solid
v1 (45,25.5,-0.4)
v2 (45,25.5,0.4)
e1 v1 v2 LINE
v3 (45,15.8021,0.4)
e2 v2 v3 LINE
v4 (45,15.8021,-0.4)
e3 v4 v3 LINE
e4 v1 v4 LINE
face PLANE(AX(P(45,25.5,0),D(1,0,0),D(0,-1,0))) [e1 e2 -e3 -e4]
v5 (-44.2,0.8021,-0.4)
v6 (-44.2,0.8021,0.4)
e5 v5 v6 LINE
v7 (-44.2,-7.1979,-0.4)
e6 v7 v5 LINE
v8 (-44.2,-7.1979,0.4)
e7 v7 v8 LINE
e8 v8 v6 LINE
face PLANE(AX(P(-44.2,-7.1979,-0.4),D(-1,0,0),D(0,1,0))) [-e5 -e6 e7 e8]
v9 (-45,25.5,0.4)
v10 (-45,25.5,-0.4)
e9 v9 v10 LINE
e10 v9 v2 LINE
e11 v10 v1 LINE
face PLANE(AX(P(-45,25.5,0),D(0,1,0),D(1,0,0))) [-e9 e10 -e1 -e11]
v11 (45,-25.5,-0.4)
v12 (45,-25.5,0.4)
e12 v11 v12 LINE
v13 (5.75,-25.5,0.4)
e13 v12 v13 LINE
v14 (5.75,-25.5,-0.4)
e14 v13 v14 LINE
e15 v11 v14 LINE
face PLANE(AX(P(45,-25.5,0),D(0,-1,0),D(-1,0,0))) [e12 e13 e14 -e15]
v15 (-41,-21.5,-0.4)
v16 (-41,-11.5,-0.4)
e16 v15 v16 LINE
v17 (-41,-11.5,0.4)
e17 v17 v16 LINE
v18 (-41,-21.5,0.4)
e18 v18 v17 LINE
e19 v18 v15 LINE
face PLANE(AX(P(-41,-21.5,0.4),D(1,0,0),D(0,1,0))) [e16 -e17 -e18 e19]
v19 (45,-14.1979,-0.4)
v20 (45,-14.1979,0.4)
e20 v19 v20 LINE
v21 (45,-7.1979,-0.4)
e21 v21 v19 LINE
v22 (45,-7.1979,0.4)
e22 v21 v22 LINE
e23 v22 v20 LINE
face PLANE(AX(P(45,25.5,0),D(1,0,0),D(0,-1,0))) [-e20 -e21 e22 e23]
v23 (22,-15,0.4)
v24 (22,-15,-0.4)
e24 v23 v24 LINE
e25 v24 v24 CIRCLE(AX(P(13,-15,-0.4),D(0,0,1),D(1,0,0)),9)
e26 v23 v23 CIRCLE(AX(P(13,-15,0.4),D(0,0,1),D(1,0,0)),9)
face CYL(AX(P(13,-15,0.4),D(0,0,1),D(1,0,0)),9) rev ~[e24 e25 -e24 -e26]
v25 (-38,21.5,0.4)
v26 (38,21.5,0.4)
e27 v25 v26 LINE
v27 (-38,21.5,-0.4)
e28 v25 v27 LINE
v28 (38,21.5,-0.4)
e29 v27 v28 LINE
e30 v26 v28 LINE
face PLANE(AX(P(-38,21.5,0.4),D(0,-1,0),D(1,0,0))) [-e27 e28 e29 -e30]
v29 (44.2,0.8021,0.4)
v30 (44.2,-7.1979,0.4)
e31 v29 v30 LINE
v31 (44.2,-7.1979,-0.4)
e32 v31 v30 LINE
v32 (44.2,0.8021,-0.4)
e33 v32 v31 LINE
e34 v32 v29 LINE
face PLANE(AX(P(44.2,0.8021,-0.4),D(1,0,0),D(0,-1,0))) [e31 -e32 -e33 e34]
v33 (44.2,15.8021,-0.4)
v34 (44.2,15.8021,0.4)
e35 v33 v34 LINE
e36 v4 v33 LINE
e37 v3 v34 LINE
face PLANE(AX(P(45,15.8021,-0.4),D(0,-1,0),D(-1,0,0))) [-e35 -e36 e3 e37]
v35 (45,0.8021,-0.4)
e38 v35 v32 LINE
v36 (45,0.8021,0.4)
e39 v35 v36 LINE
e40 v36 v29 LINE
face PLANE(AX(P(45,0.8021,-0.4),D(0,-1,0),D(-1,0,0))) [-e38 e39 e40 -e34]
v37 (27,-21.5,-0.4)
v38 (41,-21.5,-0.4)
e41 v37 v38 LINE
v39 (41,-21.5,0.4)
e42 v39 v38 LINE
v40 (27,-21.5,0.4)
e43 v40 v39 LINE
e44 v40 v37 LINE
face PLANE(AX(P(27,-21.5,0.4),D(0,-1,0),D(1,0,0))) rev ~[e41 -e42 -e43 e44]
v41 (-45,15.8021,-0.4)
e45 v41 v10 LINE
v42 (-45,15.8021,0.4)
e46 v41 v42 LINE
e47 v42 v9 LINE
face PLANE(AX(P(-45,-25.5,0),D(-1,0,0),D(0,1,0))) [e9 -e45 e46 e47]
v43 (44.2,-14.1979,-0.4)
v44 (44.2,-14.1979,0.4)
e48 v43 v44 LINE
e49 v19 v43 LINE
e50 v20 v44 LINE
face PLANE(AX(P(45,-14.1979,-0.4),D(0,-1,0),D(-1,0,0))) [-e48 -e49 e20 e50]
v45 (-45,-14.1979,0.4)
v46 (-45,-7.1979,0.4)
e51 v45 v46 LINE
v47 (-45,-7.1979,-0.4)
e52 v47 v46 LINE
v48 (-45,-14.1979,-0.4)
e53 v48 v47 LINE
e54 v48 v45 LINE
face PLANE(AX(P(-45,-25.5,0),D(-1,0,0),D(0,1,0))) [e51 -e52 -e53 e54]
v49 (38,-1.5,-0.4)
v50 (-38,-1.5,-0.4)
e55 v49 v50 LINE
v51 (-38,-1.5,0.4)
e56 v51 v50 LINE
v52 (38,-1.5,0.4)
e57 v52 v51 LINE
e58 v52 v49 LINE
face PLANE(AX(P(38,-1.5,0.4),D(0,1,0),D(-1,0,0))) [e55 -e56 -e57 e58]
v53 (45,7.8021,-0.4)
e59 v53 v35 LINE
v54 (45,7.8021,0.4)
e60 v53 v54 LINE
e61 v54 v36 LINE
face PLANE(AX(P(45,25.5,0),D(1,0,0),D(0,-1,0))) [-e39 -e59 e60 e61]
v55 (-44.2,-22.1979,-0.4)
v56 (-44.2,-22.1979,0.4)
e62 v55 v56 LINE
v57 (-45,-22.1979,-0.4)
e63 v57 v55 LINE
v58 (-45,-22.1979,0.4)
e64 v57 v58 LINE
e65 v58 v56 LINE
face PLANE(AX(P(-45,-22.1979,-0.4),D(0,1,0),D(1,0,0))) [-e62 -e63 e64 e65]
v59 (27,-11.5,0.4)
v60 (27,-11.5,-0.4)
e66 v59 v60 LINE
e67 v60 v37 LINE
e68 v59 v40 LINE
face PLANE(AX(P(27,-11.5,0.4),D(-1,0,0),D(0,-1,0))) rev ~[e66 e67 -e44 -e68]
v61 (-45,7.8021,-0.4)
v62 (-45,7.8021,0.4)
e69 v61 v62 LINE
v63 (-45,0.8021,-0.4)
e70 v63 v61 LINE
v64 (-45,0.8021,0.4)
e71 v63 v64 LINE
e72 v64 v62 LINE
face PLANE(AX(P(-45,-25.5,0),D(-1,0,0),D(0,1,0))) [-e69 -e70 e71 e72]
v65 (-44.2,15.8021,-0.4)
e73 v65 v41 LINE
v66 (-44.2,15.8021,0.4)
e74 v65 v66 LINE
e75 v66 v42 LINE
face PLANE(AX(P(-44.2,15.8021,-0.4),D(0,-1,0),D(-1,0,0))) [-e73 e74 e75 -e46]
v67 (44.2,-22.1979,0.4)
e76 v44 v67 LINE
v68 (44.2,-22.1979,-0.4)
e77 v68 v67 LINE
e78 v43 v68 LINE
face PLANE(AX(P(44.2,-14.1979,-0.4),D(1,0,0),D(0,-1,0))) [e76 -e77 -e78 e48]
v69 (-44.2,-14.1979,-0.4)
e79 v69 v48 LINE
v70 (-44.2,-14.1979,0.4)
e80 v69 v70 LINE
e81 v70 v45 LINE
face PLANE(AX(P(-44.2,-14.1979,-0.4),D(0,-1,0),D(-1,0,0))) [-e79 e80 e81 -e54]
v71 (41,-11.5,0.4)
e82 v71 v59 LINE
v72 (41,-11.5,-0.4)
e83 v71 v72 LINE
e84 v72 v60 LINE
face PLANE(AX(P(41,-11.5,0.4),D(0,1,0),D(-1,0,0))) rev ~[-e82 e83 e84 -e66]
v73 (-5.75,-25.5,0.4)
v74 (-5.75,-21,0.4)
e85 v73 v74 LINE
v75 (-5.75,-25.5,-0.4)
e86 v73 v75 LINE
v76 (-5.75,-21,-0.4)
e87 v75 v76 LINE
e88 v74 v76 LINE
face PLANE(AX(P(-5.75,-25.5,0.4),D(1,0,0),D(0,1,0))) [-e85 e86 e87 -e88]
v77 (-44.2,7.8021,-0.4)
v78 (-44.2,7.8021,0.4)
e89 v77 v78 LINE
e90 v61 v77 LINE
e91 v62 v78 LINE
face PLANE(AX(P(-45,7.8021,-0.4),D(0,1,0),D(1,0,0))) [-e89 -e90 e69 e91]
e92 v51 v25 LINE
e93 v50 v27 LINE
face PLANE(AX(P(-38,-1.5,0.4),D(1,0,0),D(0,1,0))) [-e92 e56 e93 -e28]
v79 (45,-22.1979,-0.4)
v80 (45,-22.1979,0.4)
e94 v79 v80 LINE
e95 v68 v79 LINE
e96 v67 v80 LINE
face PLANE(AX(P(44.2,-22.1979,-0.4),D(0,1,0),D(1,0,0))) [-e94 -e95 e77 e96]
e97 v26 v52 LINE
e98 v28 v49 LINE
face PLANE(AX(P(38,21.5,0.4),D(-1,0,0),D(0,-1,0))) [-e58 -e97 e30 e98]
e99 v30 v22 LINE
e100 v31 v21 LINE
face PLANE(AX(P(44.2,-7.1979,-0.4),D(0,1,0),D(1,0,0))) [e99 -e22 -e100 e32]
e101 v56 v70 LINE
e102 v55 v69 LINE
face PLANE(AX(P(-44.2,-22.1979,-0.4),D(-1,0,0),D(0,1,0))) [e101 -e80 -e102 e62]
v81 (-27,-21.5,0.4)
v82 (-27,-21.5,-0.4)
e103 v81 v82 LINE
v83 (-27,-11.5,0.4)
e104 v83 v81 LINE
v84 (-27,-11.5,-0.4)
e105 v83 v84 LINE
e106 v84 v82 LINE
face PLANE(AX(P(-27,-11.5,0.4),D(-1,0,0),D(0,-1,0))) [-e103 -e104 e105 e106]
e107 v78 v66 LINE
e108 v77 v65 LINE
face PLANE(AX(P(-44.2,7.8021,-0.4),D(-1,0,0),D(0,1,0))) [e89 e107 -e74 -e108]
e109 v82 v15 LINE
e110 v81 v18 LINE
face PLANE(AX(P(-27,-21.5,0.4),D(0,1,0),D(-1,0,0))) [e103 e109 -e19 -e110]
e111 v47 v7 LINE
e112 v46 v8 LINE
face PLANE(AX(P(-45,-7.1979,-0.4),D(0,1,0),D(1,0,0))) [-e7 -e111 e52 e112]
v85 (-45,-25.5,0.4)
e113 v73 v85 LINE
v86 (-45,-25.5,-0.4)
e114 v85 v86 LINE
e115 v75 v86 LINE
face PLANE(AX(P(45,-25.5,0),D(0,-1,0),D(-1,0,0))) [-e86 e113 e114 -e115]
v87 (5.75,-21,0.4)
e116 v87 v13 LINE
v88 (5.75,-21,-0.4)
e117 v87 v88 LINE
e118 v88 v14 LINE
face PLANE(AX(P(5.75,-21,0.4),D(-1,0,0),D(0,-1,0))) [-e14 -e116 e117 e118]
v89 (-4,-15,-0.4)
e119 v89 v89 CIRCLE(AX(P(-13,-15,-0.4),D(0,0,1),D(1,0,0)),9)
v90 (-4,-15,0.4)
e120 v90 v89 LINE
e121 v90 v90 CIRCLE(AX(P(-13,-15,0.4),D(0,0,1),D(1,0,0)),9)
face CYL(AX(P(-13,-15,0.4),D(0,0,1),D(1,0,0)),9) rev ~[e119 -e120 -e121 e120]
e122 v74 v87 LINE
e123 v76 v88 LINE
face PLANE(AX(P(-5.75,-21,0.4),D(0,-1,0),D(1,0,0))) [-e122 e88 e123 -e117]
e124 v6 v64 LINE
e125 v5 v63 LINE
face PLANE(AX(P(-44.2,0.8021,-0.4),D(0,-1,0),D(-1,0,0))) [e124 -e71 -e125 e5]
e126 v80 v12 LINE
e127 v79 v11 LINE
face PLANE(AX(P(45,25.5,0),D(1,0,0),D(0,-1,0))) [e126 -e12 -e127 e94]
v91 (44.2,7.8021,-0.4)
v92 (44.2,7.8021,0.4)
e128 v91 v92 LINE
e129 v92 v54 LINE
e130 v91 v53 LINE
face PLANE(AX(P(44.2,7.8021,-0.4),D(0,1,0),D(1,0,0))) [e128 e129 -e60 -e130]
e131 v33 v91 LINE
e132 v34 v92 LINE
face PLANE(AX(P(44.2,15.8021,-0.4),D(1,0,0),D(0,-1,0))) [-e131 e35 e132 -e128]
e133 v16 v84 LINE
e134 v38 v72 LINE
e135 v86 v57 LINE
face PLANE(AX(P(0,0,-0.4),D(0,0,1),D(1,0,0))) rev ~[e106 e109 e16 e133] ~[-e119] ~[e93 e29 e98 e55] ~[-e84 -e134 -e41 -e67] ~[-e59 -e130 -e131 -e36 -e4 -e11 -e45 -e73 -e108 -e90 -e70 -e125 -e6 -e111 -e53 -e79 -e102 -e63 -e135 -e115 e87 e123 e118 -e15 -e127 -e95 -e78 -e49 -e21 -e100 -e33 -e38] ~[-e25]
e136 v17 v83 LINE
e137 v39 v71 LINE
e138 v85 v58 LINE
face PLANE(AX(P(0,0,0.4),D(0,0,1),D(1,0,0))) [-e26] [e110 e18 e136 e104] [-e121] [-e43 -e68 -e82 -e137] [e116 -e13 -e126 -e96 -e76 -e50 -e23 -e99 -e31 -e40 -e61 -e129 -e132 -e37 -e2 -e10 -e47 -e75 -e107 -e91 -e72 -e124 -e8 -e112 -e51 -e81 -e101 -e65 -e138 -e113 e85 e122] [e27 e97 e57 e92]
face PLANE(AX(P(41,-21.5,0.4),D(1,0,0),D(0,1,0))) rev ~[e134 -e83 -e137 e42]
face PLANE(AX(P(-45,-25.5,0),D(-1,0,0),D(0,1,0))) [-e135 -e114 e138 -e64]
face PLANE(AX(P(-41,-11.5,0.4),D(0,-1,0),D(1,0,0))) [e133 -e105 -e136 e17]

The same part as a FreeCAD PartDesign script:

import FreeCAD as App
import Part
import Sketcher
from FreeCAD import Vector
Q = App.Units.Quantity


def add_polygon(sketch, points):
    """Adds a closed chain of lines whose ends are joined by coincident constraints."""
    first, n = sketch.GeometryCount, len(points)
    for a, b in zip(points, points[1:] + points[:1]):
        sketch.addGeometry(Part.LineSegment(App.Vector(*a, 0), App.Vector(*b, 0)), False)
    for i in range(n):
        sketch.addConstraint(Sketcher.Constraint("Coincident", first + i, 2, first + (i + 1) % n, 1))

doc = App.newDocument("Part")
body = doc.addObject("PartDesign::Body", "Body")

sketch1 = body.newObject("Sketcher::SketchObject", "Sketch")
sketch1.AttachmentSupport = (doc.getObject("XY_Plane"), [""])
sketch1.MapMode = "FlatFace"
add_polygon(sketch1, [(-45, -26), (45, -26), (45, 26), (-45, 26)])
sketch1.addConstraint([
    Sketcher.Constraint("Horizontal", 0),
    Sketcher.Constraint("Vertical", 1),
    Sketcher.Constraint("Horizontal", 2),
    Sketcher.Constraint("Vertical", 3),
    Sketcher.Constraint("Symmetric", 0, 2, 2, 2, -1, 1),
    Sketcher.Constraint("DistanceX", 0, 1, 0, 2, Q("90 mm")),
    Sketcher.Constraint("DistanceY", 1, 1, 1, 2, Q("51 mm")),
])
pad1 = body.newObject("PartDesign::Pad", "Pad")
pad1.Profile = sketch1
pad1.Length = 0.8
pad1.Midplane = True

sketch2 = body.newObject("Sketcher::SketchObject", "Sketch001")
sketch2.AttachmentSupport = (doc.getObject("XY_Plane"), [""])
sketch2.MapMode = "FlatFace"
sketch2.AttachmentOffset = App.Placement(Vector(0, 0, 0.4), App.Rotation())
sketch2.addGeometry([
    Part.Circle(Vector(-13, -15, 0), Vector(0, 0, 1), 9),
    Part.Circle(Vector(13, -15, 0), Vector(0, 0, 1), 9),
], False)
sketch2.addConstraint([
    Sketcher.Constraint("Equal", 0, 1),
    Sketcher.Constraint("Symmetric", 0, 3, 1, 3, -2),
    Sketcher.Constraint("Diameter", 0, Q("18 mm")),
    Sketcher.Constraint("DistanceX", 0, 3, 1, 3, Q("26 mm")),
    Sketcher.Constraint("DistanceY", 0, 3, -1, 1, Q("15 mm")),
])
pocket1 = body.newObject("PartDesign::Pocket", "Pocket")
pocket1.Profile = sketch2
pocket1.Type = "ThroughAll"

sketch3 = body.newObject("Sketcher::SketchObject", "Sketch002")
sketch3.AttachmentSupport = (doc.getObject("XY_Plane"), [""])
sketch3.MapMode = "FlatFace"
sketch3.AttachmentOffset = App.Placement(Vector(0, 0, 0.4), App.Rotation())
add_polygon(sketch3, [(5.8, -21), (-5.8, -21), (-5.8, -25.5), (5.8, -25.5)])
sketch3.addConstraint([
    Sketcher.Constraint("Horizontal", 0),
    Sketcher.Constraint("Vertical", 1),
    Sketcher.Constraint("Horizontal", 2),
    Sketcher.Constraint("Vertical", 3),
    Sketcher.Constraint("DistanceX", 0, 2, 0, 1, Q("11.5 mm")),
    Sketcher.Constraint("DistanceY", 1, 2, 1, 1, Q("4.5 mm")),
    Sketcher.Constraint("DistanceY", 0, 2, -1, 1, Q("21 mm")),
    Sketcher.Constraint("DistanceX", 0, 2, -1, 1, Q("5.75 mm")),
])
pocket2 = body.newObject("PartDesign::Pocket", "Pocket001")
pocket2.Profile = sketch3
pocket2.Type = "ThroughAll"

sketch4 = body.newObject("Sketcher::SketchObject", "Sketch003")
sketch4.AttachmentSupport = (doc.getObject("XY_Plane"), [""])
sketch4.MapMode = "FlatFace"
sketch4.AttachmentOffset = App.Placement(Vector(0, 0, 0.4), App.Rotation())
add_polygon(sketch4, [(38, 22), (-38, 22), (-38, -2), (38, -2)])
sketch4.addConstraint([
    Sketcher.Constraint("Horizontal", 0),
    Sketcher.Constraint("Vertical", 1),
    Sketcher.Constraint("Horizontal", 2),
    Sketcher.Constraint("Vertical", 3),
    Sketcher.Constraint("DistanceX", 0, 2, 0, 1, Q("76 mm")),
    Sketcher.Constraint("DistanceY", 1, 2, 1, 1, Q("23 mm")),
    Sketcher.Constraint("DistanceX", 0, 2, -1, 1, Q("38 mm")),
    Sketcher.Constraint("DistanceY", -1, 1, 0, 2, Q("21.5 mm")),
])
pocket3 = body.newObject("PartDesign::Pocket", "Pocket002")
pocket3.Profile = sketch4
pocket3.Length = 10

sketch5 = body.newObject("Sketcher::SketchObject", "Sketch004")
sketch5.AttachmentSupport = (doc.getObject("XY_Plane"), [""])
sketch5.MapMode = "FlatFace"
sketch5.AttachmentOffset = App.Placement(Vector(0, 0, 0.4), App.Rotation())
add_polygon(sketch5, [(-27, -12), (-41, -12), (-41, -22), (-27, -22)])
add_polygon(sketch5, [(41, -22), (41, -12), (27, -12), (27, -22)])
sketch5.addConstraint([
    Sketcher.Constraint("Horizontal", 0),
    Sketcher.Constraint("Vertical", 1),
    Sketcher.Constraint("Horizontal", 2),
    Sketcher.Constraint("Vertical", 3),
    Sketcher.Constraint("Vertical", 4),
    Sketcher.Constraint("Horizontal", 5),
    Sketcher.Constraint("Vertical", 6),
    Sketcher.Constraint("Horizontal", 7),
    Sketcher.Constraint("Symmetric", 0, 2, 4, 2, -2),
    Sketcher.Constraint("Symmetric", 2, 2, 6, 2, -2),
    Sketcher.Constraint("DistanceX", 0, 2, 0, 1, Q("14 mm")),
    Sketcher.Constraint("DistanceY", 1, 2, 1, 1, Q("10 mm")),
    Sketcher.Constraint("DistanceX", 0, 2, -1, 1, Q("41 mm")),
    Sketcher.Constraint("DistanceY", 0, 2, -1, 1, Q("11.5 mm")),
])
pocket4 = body.newObject("PartDesign::Pocket", "Pocket003")
pocket4.Profile = sketch5
pocket4.Length = 10

sketch6 = body.newObject("Sketcher::SketchObject", "Sketch005")
sketch6.AttachmentSupport = (doc.getObject("XY_Plane"), [""])
sketch6.MapMode = "FlatFace"
sketch6.AttachmentOffset = App.Placement(Vector(0, 0, -0.4), App.Rotation())
add_polygon(sketch6, [(-45, 0.8), (-44.2, 0.8), (-44.2, -7.2), (-45, -7.2)])
add_polygon(sketch6, [(-45, 15.8), (-44.2, 15.8), (-44.2, 7.8), (-45, 7.8)])
add_polygon(sketch6, [(-45, -14.2), (-44.2, -14.2), (-44.2, -22.2), (-45, -22.2)])
add_polygon(sketch6, [(44.2, 0.8), (45, 0.8), (45, -7.2), (44.2, -7.2)])
add_polygon(sketch6, [(44.2, 15.8), (45, 15.8), (45, 7.8), (44.2, 7.8)])
add_polygon(sketch6, [(44.2, -14.2), (45, -14.2), (45, -22.2), (44.2, -22.2)])
sketch6.addConstraint([
    Sketcher.Constraint("Horizontal", 0),
    Sketcher.Constraint("Vertical", 1),
    Sketcher.Constraint("Horizontal", 2),
    Sketcher.Constraint("Vertical", 3),
    Sketcher.Constraint("Horizontal", 4),
    Sketcher.Constraint("Vertical", 5),
    Sketcher.Constraint("Horizontal", 6),
    Sketcher.Constraint("Vertical", 7),
    Sketcher.Constraint("Horizontal", 8),
    Sketcher.Constraint("Vertical", 9),
    Sketcher.Constraint("Horizontal", 10),
    Sketcher.Constraint("Vertical", 11),
    Sketcher.Constraint("Horizontal", 12),
    Sketcher.Constraint("Vertical", 13),
    Sketcher.Constraint("Horizontal", 14),
    Sketcher.Constraint("Vertical", 15),
    Sketcher.Constraint("Horizontal", 16),
    Sketcher.Constraint("Vertical", 17),
    Sketcher.Constraint("Horizontal", 18),
    Sketcher.Constraint("Vertical", 19),
    Sketcher.Constraint("Horizontal", 20),
    Sketcher.Constraint("Vertical", 21),
    Sketcher.Constraint("Horizontal", 22),
    Sketcher.Constraint("Vertical", 23),
    Sketcher.Constraint("Symmetric", 3, 2, 12, 2, -2),
    Sketcher.Constraint("Symmetric", 1, 2, 14, 2, -2),
    Sketcher.Constraint("Symmetric", 7, 2, 16, 2, -2),
    Sketcher.Constraint("Symmetric", 5, 2, 18, 2, -2),
    Sketcher.Constraint("Symmetric", 11, 2, 20, 2, -2),
    Sketcher.Constraint("Symmetric", 9, 2, 22, 2, -2),
    Sketcher.Constraint("Vertical", 1, 2, 4, 2),
    Sketcher.Constraint("Vertical", 3, 2, 6, 2),
    Sketcher.Constraint("Vertical", 5, 2, 8, 2),
    Sketcher.Constraint("Vertical", 7, 2, 10, 2),
    Sketcher.Constraint("Equal", 3, 5),
    Sketcher.Constraint("Equal", 7, 9),
    Sketcher.Constraint("DistanceY", 1, 2, 1, 1, Q("8 mm")),
    Sketcher.Constraint("DistanceX", 0, 1, 0, 2, Q("0.8 mm")),
    Sketcher.Constraint("DistanceX", 2, 2, -1, 1, Q("45 mm")),
    Sketcher.Constraint("DistanceY", 0, 2, 4, 2, Q("15 mm")),
    Sketcher.Constraint("DistanceY", 8, 2, 1, 2, Q("7 mm")),
    Sketcher.Constraint("DistanceY", -1, 1, 0, 2, Q("0.802 mm")),
])
pocket5 = body.newObject("PartDesign::Pocket", "Pocket004")
pocket5.Profile = sketch6
pocket5.Length = 0.8
pocket5.Reversed = True

doc.recompute()
